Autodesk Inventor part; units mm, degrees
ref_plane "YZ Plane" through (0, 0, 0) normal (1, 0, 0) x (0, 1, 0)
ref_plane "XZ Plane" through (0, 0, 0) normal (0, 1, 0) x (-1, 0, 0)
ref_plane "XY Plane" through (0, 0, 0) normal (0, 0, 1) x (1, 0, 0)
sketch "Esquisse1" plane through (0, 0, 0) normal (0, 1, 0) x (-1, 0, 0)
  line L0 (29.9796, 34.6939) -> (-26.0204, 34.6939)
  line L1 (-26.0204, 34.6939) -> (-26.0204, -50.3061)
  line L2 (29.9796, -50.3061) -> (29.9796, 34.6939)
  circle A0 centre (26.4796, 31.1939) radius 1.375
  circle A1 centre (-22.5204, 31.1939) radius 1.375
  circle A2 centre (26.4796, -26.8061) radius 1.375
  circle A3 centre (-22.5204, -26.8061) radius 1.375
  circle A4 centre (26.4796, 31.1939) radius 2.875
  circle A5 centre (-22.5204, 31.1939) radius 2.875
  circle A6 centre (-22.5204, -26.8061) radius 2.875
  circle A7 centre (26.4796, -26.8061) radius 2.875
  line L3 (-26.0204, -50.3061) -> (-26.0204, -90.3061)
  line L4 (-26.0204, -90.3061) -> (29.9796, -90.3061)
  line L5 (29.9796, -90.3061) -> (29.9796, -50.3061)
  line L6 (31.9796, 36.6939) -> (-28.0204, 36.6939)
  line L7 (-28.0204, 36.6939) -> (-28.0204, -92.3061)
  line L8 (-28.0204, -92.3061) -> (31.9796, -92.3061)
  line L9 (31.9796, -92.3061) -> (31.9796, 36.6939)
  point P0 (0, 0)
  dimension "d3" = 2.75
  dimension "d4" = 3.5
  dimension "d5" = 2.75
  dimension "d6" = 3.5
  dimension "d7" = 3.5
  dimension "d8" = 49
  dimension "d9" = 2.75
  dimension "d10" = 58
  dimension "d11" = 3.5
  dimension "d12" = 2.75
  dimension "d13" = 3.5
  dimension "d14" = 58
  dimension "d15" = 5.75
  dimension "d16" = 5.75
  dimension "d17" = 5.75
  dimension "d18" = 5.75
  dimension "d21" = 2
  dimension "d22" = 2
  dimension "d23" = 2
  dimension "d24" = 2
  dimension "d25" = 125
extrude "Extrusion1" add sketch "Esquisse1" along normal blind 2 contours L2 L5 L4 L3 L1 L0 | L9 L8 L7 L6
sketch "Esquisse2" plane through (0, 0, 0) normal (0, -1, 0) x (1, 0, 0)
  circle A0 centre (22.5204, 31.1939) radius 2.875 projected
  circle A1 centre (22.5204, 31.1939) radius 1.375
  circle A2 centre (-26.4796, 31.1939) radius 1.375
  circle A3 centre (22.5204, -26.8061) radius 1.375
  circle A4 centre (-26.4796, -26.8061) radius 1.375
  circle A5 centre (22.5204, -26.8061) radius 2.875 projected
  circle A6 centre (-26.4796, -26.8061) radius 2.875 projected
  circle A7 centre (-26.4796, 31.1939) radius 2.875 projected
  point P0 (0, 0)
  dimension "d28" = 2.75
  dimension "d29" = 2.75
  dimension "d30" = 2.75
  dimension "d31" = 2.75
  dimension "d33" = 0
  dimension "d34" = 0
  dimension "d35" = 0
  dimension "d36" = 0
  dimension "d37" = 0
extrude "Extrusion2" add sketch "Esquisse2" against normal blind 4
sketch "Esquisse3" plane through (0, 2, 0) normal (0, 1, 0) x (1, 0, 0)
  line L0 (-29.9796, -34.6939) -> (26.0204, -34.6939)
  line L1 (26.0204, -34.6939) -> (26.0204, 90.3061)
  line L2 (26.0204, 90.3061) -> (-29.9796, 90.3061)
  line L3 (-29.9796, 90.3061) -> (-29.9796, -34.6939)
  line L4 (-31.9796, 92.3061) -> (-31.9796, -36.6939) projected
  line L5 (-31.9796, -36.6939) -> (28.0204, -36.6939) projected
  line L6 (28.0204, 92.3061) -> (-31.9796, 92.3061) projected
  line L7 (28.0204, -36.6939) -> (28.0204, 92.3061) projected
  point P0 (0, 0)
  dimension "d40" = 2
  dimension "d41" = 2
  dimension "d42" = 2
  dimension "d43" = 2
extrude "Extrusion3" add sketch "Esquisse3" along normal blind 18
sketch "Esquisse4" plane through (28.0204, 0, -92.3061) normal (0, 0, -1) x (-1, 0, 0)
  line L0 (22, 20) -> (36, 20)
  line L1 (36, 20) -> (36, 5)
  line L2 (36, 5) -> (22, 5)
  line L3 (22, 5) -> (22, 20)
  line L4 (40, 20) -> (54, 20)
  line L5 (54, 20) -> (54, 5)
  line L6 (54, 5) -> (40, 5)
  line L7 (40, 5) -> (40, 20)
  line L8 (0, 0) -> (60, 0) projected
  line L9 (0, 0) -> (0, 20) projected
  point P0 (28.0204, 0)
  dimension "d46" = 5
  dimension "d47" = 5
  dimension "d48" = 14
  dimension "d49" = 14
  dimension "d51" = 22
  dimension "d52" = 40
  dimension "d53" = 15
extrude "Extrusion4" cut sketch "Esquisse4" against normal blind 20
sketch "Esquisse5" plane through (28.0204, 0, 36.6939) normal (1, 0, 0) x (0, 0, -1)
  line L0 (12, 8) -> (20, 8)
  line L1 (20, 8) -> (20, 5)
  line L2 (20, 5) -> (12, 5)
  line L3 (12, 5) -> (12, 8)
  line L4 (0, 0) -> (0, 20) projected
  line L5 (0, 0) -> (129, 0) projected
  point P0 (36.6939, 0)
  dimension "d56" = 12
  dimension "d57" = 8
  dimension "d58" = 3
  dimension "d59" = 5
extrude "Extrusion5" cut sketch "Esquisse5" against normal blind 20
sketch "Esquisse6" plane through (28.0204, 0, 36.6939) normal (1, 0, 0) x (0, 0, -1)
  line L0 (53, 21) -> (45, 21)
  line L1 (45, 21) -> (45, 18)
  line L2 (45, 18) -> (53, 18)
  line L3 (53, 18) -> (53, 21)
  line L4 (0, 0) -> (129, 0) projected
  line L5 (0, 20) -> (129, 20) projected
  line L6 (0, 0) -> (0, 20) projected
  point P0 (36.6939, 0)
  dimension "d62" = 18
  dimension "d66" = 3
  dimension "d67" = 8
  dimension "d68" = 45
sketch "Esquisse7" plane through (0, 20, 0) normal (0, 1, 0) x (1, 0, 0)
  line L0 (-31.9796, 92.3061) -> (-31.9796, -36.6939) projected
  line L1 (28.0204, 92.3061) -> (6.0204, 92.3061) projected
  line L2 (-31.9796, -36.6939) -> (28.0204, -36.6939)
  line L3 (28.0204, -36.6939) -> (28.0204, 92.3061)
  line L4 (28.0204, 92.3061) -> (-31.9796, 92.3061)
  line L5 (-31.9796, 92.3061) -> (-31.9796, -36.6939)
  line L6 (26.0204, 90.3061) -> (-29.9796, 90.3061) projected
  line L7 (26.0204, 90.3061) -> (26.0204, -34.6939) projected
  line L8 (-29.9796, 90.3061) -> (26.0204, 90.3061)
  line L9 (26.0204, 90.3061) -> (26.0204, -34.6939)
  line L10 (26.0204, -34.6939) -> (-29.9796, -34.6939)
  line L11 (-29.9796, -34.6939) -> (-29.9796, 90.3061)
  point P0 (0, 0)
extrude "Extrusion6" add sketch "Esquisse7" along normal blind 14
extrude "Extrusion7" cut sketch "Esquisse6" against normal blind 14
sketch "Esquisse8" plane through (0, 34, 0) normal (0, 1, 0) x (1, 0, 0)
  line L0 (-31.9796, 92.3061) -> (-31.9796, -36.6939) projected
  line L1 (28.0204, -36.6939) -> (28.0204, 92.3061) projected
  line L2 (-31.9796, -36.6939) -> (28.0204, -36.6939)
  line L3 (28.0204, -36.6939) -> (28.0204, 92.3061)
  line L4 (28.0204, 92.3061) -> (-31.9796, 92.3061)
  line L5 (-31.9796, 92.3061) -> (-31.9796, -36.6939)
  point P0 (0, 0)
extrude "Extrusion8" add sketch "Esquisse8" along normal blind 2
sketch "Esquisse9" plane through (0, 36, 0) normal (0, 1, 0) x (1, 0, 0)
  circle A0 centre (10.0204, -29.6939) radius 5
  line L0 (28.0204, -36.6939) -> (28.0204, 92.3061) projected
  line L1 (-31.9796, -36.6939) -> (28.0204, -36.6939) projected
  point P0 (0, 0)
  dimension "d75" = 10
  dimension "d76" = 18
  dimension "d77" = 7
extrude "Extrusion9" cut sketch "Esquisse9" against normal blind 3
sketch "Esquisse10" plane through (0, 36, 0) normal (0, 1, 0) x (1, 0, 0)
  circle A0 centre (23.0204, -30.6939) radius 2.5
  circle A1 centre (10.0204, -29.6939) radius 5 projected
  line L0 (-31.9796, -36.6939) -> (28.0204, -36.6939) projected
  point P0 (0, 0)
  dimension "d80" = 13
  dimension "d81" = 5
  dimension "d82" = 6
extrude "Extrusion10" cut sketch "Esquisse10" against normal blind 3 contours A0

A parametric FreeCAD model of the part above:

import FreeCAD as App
import Part
import Sketcher
from FreeCAD import Vector
Q = App.Units.Quantity

doc = App.newDocument("Part")
body = doc.addObject("PartDesign::Body", "Body")

sketch1 = doc.addObject("Sketcher::SketchObject", "Sketch")
body.addObject(sketch1)
sketch1.AttachmentSupport = (doc.XZ_Plane, [""])
sketch1.MapMode = "FlatFace"
sketch1.addGeometry(Part.LineSegment(Vector(-32, -92.3, 0), Vector(-32, 36.7, 0)), False)
sketch1.addGeometry(Part.LineSegment(Vector(-32, 36.7, 0), Vector(28, 36.7, 0)), False)
sketch1.addGeometry(Part.LineSegment(Vector(28, 36.7, 0), Vector(28, -92.3, 0)), False)
sketch1.addGeometry(Part.LineSegment(Vector(28, -92.3, 0), Vector(-32, -92.3, 0)), False)
sketch1.addGeometry(Part.Circle(Vector(22.5, -26.8, 0), Vector(0, 0, 1), 2.9), False)
sketch1.addGeometry(Part.Circle(Vector(22.5, 31.2, 0), Vector(0, 0, 1), 2.9), False)
sketch1.addGeometry(Part.Circle(Vector(-26.5, -26.8, 0), Vector(0, 0, 1), 2.9), False)
sketch1.addGeometry(Part.Circle(Vector(-26.5, 31.2, 0), Vector(0, 0, 1), 2.9), False)
sketch1.addConstraint(Sketcher.Constraint("Coincident", 0, 2, 1, 1))
sketch1.addConstraint(Sketcher.Constraint("Coincident", 1, 2, 2, 1))
sketch1.addConstraint(Sketcher.Constraint("Coincident", 2, 2, 3, 1))
sketch1.addConstraint(Sketcher.Constraint("Coincident", 3, 2, 0, 1))
sketch1.addConstraint(Sketcher.Constraint("Vertical", 0))
sketch1.addConstraint(Sketcher.Constraint("Horizontal", 1))
sketch1.addConstraint(Sketcher.Constraint("Vertical", 2))
sketch1.addConstraint(Sketcher.Constraint("Horizontal", 3))
sketch1.addConstraint(Sketcher.Constraint("Equal", 4, 5))
sketch1.addConstraint(Sketcher.Constraint("Equal", 5, 6))
sketch1.addConstraint(Sketcher.Constraint("Equal", 6, 7))
sketch1.addConstraint(Sketcher.Constraint("Horizontal", 4, 3, 6, 3))
sketch1.addConstraint(Sketcher.Constraint("Horizontal", 5, 3, 7, 3))
sketch1.addConstraint(Sketcher.Constraint("Vertical", 4, 3, 5, 3))
sketch1.addConstraint(Sketcher.Constraint("Vertical", 6, 3, 7, 3))
sketch1.addConstraint(Sketcher.Constraint("Diameter", 4, Q("5.75 mm")))
sketch1.addConstraint(Sketcher.Constraint("DistanceY", 4, 3, 5, 3, Q("58 mm")))
sketch1.addConstraint(Sketcher.Constraint("DistanceX", 6, 3, 4, 3, Q("49 mm")))
sketch1.addConstraint(Sketcher.Constraint("DistanceX", 1, 1, 1, 2, Q("60 mm")))
sketch1.addConstraint(Sketcher.Constraint("DistanceY", 0, 1, 0, 2, Q("129 mm")))
sketch1.addConstraint(Sketcher.Constraint("DistanceX", 0, 2, 7, 3, Q("5.5 mm")))
sketch1.addConstraint(Sketcher.Constraint("DistanceY", 7, 3, 0, 2, Q("5.5 mm")))
sketch1.addConstraint(Sketcher.Constraint("DistanceY", 4, 3, -1, 1, Q("26.806 mm")))
sketch1.addConstraint(Sketcher.Constraint("DistanceX", -1, 1, 4, 3, Q("22.5204 mm")))
pad1 = doc.addObject("PartDesign::Pad", "Pad")
body.addObject(pad1)
pad1.Profile = sketch1
pad1.Length = 2
pad1.Reversed = True

sketch2 = doc.addObject("Sketcher::SketchObject", "Sketch001")
body.addObject(sketch2)
sketch2.AttachmentSupport = (doc.XZ_Plane, [""])
sketch2.MapMode = "FlatFace"
sketch2.addGeometry(Part.Circle(Vector(22.5, 31.2, 0), Vector(0, 0, 1), 2.9), False)
sketch2.addGeometry(Part.Circle(Vector(22.5, 31.2, 0), Vector(0, 0, 1), 1.4), False)
sketch2.addGeometry(Part.Circle(Vector(22.5, -26.8, 0), Vector(0, 0, 1), 2.9), False)
sketch2.addGeometry(Part.Circle(Vector(22.5, -26.8, 0), Vector(0, 0, 1), 1.4), False)
sketch2.addGeometry(Part.Circle(Vector(-26.5, -26.8, 0), Vector(0, 0, 1), 2.9), False)
sketch2.addGeometry(Part.Circle(Vector(-26.5, -26.8, 0), Vector(0, 0, 1), 1.4), False)
sketch2.addGeometry(Part.Circle(Vector(-26.5, 31.2, 0), Vector(0, 0, 1), 2.9), False)
sketch2.addGeometry(Part.Circle(Vector(-26.5, 31.2, 0), Vector(0, 0, 1), 1.4), False)
sketch2.addConstraint(Sketcher.Constraint("Coincident", 1, 3, 0, 3))
sketch2.addConstraint(Sketcher.Constraint("Coincident", 3, 3, 2, 3))
sketch2.addConstraint(Sketcher.Constraint("Coincident", 5, 3, 4, 3))
sketch2.addConstraint(Sketcher.Constraint("Coincident", 7, 3, 6, 3))
sketch2.addConstraint(Sketcher.Constraint("Equal", 0, 2))
sketch2.addConstraint(Sketcher.Constraint("Equal", 1, 3))
sketch2.addConstraint(Sketcher.Constraint("Equal", 2, 4))
sketch2.addConstraint(Sketcher.Constraint("Equal", 3, 5))
sketch2.addConstraint(Sketcher.Constraint("Equal", 4, 6))
sketch2.addConstraint(Sketcher.Constraint("Equal", 5, 7))
sketch2.addConstraint(Sketcher.Constraint("Horizontal", 3, 3, 4, 3))
sketch2.addConstraint(Sketcher.Constraint("Horizontal", 1, 3, 6, 3))
sketch2.addConstraint(Sketcher.Constraint("Vertical", 1, 3, 2, 3))
sketch2.addConstraint(Sketcher.Constraint("Vertical", 5, 3, 6, 3))
sketch2.addConstraint(Sketcher.Constraint("Diameter", 1, Q("2.75 mm")))
sketch2.addConstraint(Sketcher.Constraint("Diameter", 0, Q("5.75 mm")))
sketch2.addConstraint(Sketcher.Constraint("DistanceY", 2, 3, 0, 3, Q("58 mm")))
sketch2.addConstraint(Sketcher.Constraint("DistanceX", 4, 3, 2, 3, Q("49 mm")))
sketch2.addConstraint(Sketcher.Constraint("DistanceY", -1, 1, 0, 3, Q("31.194 mm")))
sketch2.addConstraint(Sketcher.Constraint("DistanceX", -1, 1, 0, 3, Q("22.5204 mm")))
pad2 = doc.addObject("PartDesign::Pad", "Pad001")
body.addObject(pad2)
pad2.Profile = sketch2
pad2.Length = 4
pad2.Reversed = True

sketch3 = doc.addObject("Sketcher::SketchObject", "Sketch002")
body.addObject(sketch3)
sketch3.AttachmentSupport = (doc.XZ_Plane, [""])
sketch3.MapMode = "FlatFace"
sketch3.AttachmentOffset = App.Placement(Vector(0, 0, -2), App.Rotation())
sketch3.addGeometry(Part.LineSegment(Vector(28, -92, 0), Vector(-32, -92, 0)), False)
sketch3.addGeometry(Part.LineSegment(Vector(-32, -92, 0), Vector(-32, 37, 0)), False)
sketch3.addGeometry(Part.LineSegment(Vector(-32, 37, 0), Vector(28, 37, 0)), False)
sketch3.addGeometry(Part.LineSegment(Vector(28, 37, 0), Vector(28, -92, 0)), False)
sketch3.addGeometry(Part.LineSegment(Vector(26, 35, 0), Vector(-30, 35, 0)), False)
sketch3.addGeometry(Part.LineSegment(Vector(-30, 35, 0), Vector(-30, -90, 0)), False)
sketch3.addGeometry(Part.LineSegment(Vector(-30, -90, 0), Vector(26, -90, 0)), False)
sketch3.addGeometry(Part.LineSegment(Vector(26, -90, 0), Vector(26, 35, 0)), False)
sketch3.addConstraint(Sketcher.Constraint("Coincident", 0, 2, 1, 1))
sketch3.addConstraint(Sketcher.Constraint("Coincident", 1, 2, 2, 1))
sketch3.addConstraint(Sketcher.Constraint("Coincident", 2, 2, 3, 1))
sketch3.addConstraint(Sketcher.Constraint("Coincident", 3, 2, 0, 1))
sketch3.addConstraint(Sketcher.Constraint("Coincident", 4, 2, 5, 1))
sketch3.addConstraint(Sketcher.Constraint("Coincident", 5, 2, 6, 1))
sketch3.addConstraint(Sketcher.Constraint("Coincident", 6, 2, 7, 1))
sketch3.addConstraint(Sketcher.Constraint("Coincident", 7, 2, 4, 1))
sketch3.addConstraint(Sketcher.Constraint("Horizontal", 0))
sketch3.addConstraint(Sketcher.Constraint("Vertical", 1))
sketch3.addConstraint(Sketcher.Constraint("Horizontal", 2))
sketch3.addConstraint(Sketcher.Constraint("Vertical", 3))
sketch3.addConstraint(Sketcher.Constraint("Horizontal", 4))
sketch3.addConstraint(Sketcher.Constraint("Vertical", 5))
sketch3.addConstraint(Sketcher.Constraint("Horizontal", 6))
sketch3.addConstraint(Sketcher.Constraint("Vertical", 7))
sketch3.addConstraint(Sketcher.Constraint("DistanceX", 1, 2, 4, 2, Q("2 mm")))
sketch3.addConstraint(Sketcher.Constraint("DistanceY", 4, 2, 1, 2, Q("2 mm")))
sketch3.addConstraint(Sketcher.Constraint("DistanceY", 0, 2, 5, 2, Q("2 mm")))
sketch3.addConstraint(Sketcher.Constraint("DistanceX", 6, 2, 3, 2, Q("2 mm")))
sketch3.addConstraint(Sketcher.Constraint("DistanceX", 0, 2, 0, 1, Q("60 mm")))
sketch3.addConstraint(Sketcher.Constraint("DistanceY", 1, 1, 1, 2, Q("129 mm")))
sketch3.addConstraint(Sketcher.Constraint("DistanceY", 0, 2, -1, 1, Q("92.306 mm")))
sketch3.addConstraint(Sketcher.Constraint("DistanceX", 0, 2, -1, 1, Q("31.9796 mm")))
pad3 = doc.addObject("PartDesign::Pad", "Pad002")
body.addObject(pad3)
pad3.Profile = sketch3
pad3.Length = 18
pad3.Reversed = True

sketch4 = doc.addObject("Sketcher::SketchObject", "Sketch003")
body.addObject(sketch4)
sketch4.AttachmentSupport = (doc.XY_Plane, [""])
sketch4.MapMode = "FlatFace"
sketch4.AttachmentOffset = App.Placement(Vector(0, 0, -92.3061), App.Rotation())
sketch4.addGeometry(Part.LineSegment(Vector(-8, 20, 0), Vector(6, 20, 0)), False)
sketch4.addGeometry(Part.LineSegment(Vector(6, 20, 0), Vector(6, 5, 0)), False)
sketch4.addGeometry(Part.LineSegment(Vector(6, 5, 0), Vector(-8, 5, 0)), False)
sketch4.addGeometry(Part.LineSegment(Vector(-8, 5, 0), Vector(-8, 20, 0)), False)
sketch4.addGeometry(Part.LineSegment(Vector(-26, 20, 0), Vector(-12, 20, 0)), False)
sketch4.addGeometry(Part.LineSegment(Vector(-12, 20, 0), Vector(-12, 5, 0)), False)
sketch4.addGeometry(Part.LineSegment(Vector(-12, 5, 0), Vector(-26, 5, 0)), False)
sketch4.addGeometry(Part.LineSegment(Vector(-26, 5, 0), Vector(-26, 20, 0)), False)
sketch4.addConstraint(Sketcher.Constraint("Coincident", 0, 2, 1, 1))
sketch4.addConstraint(Sketcher.Constraint("Coincident", 1, 2, 2, 1))
sketch4.addConstraint(Sketcher.Constraint("Coincident", 2, 2, 3, 1))
sketch4.addConstraint(Sketcher.Constraint("Coincident", 3, 2, 0, 1))
sketch4.addConstraint(Sketcher.Constraint("Coincident", 4, 2, 5, 1))
sketch4.addConstraint(Sketcher.Constraint("Coincident", 5, 2, 6, 1))
sketch4.addConstraint(Sketcher.Constraint("Coincident", 6, 2, 7, 1))
sketch4.addConstraint(Sketcher.Constraint("Coincident", 7, 2, 4, 1))
sketch4.addConstraint(Sketcher.Constraint("Horizontal", 0))
sketch4.addConstraint(Sketcher.Constraint("Vertical", 1))
sketch4.addConstraint(Sketcher.Constraint("Horizontal", 2))
sketch4.addConstraint(Sketcher.Constraint("Vertical", 3))
sketch4.addConstraint(Sketcher.Constraint("Horizontal", 4))
sketch4.addConstraint(Sketcher.Constraint("Vertical", 5))
sketch4.addConstraint(Sketcher.Constraint("Horizontal", 6))
sketch4.addConstraint(Sketcher.Constraint("Vertical", 7))
sketch4.addConstraint(Sketcher.Constraint("Horizontal", 3, 2, 4, 2))
sketch4.addConstraint(Sketcher.Constraint("Horizontal", 2, 2, 5, 2))
sketch4.addConstraint(Sketcher.Constraint("Equal", 2, 4))
sketch4.addConstraint(Sketcher.Constraint("DistanceX", 0, 1, 0, 2, Q("14 mm")))
sketch4.addConstraint(Sketcher.Constraint("DistanceY", 1, 2, 1, 1, Q("15 mm")))
sketch4.addConstraint(Sketcher.Constraint("DistanceY", -1, 1, 1, 2, Q("5 mm")))
sketch4.addConstraint(Sketcher.Constraint("DistanceX", 4, 2, 3, 2, Q("4 mm")))
sketch4.addConstraint(Sketcher.Constraint("DistanceX", -1, 1, 0, 2, Q("6.0204 mm")))
pocket1 = doc.addObject("PartDesign::Pocket", "Pocket")
body.addObject(pocket1)
pocket1.Profile = sketch4
pocket1.Length = 20
pocket1.Reversed = True

sketch5 = doc.addObject("Sketcher::SketchObject", "Sketch004")
body.addObject(sketch5)
sketch5.AttachmentSupport = (doc.YZ_Plane, [""])
sketch5.MapMode = "FlatFace"
sketch5.AttachmentOffset = App.Placement(Vector(0, 0, 28.0204), App.Rotation())
sketch5.addGeometry(Part.LineSegment(Vector(8, 16.7, 0), Vector(8, 24.7, 0)), False)
sketch5.addGeometry(Part.LineSegment(Vector(8, 24.7, 0), Vector(5, 24.7, 0)), False)
sketch5.addGeometry(Part.LineSegment(Vector(5, 24.7, 0), Vector(5, 16.7, 0)), False)
sketch5.addGeometry(Part.LineSegment(Vector(5, 16.7, 0), Vector(8, 16.7, 0)), False)
sketch5.addConstraint(Sketcher.Constraint("Coincident", 0, 2, 1, 1))
sketch5.addConstraint(Sketcher.Constraint("Coincident", 1, 2, 2, 1))
sketch5.addConstraint(Sketcher.Constraint("Coincident", 2, 2, 3, 1))
sketch5.addConstraint(Sketcher.Constraint("Coincident", 3, 2, 0, 1))
sketch5.addConstraint(Sketcher.Constraint("Vertical", 0))
sketch5.addConstraint(Sketcher.Constraint("Horizontal", 1))
sketch5.addConstraint(Sketcher.Constraint("Vertical", 2))
sketch5.addConstraint(Sketcher.Constraint("Horizontal", 3))
sketch5.addConstraint(Sketcher.Constraint("DistanceX", 1, 2, 1, 1, Q("3 mm")))
sketch5.addConstraint(Sketcher.Constraint("DistanceY", 0, 1, 0, 2, Q("8 mm")))
sketch5.addConstraint(Sketcher.Constraint("DistanceX", -1, 1, 0, 2, Q("8 mm")))
sketch5.addConstraint(Sketcher.Constraint("DistanceY", -1, 1, 0, 2, Q("24.694 mm")))
pocket2 = doc.addObject("PartDesign::Pocket", "Pocket001")
body.addObject(pocket2)
pocket2.Profile = sketch5
pocket2.Length = 20

sketch6 = doc.addObject("Sketcher::SketchObject", "Sketch005")
body.addObject(sketch6)
sketch6.AttachmentSupport = (doc.XZ_Plane, [""])
sketch6.MapMode = "FlatFace"
sketch6.AttachmentOffset = App.Placement(Vector(0, 0, -20), App.Rotation())
sketch6.addGeometry(Part.LineSegment(Vector(28, -92, 0), Vector(-32, -92, 0)), False)
sketch6.addGeometry(Part.LineSegment(Vector(-32, -92, 0), Vector(-32, 37, 0)), False)
sketch6.addGeometry(Part.LineSegment(Vector(-32, 37, 0), Vector(28, 37, 0)), False)
sketch6.addGeometry(Part.LineSegment(Vector(28, 37, 0), Vector(28, -92, 0)), False)
sketch6.addGeometry(Part.LineSegment(Vector(-30, -90, 0), Vector(26, -90, 0)), False)
sketch6.addGeometry(Part.LineSegment(Vector(26, -90, 0), Vector(26, 35, 0)), False)
sketch6.addGeometry(Part.LineSegment(Vector(26, 35, 0), Vector(-30, 35, 0)), False)
sketch6.addGeometry(Part.LineSegment(Vector(-30, 35, 0), Vector(-30, -90, 0)), False)
sketch6.addConstraint(Sketcher.Constraint("Coincident", 0, 2, 1, 1))
sketch6.addConstraint(Sketcher.Constraint("Coincident", 1, 2, 2, 1))
sketch6.addConstraint(Sketcher.Constraint("Coincident", 2, 2, 3, 1))
sketch6.addConstraint(Sketcher.Constraint("Coincident", 3, 2, 0, 1))
sketch6.addConstraint(Sketcher.Constraint("Coincident", 4, 2, 5, 1))
sketch6.addConstraint(Sketcher.Constraint("Coincident", 5, 2, 6, 1))
sketch6.addConstraint(Sketcher.Constraint("Coincident", 6, 2, 7, 1))
sketch6.addConstraint(Sketcher.Constraint("Coincident", 7, 2, 4, 1))
sketch6.addConstraint(Sketcher.Constraint("Horizontal", 0))
sketch6.addConstraint(Sketcher.Constraint("Vertical", 1))
sketch6.addConstraint(Sketcher.Constraint("Horizontal", 2))
sketch6.addConstraint(Sketcher.Constraint("Vertical", 3))
sketch6.addConstraint(Sketcher.Constraint("Horizontal", 4))
sketch6.addConstraint(Sketcher.Constraint("Vertical", 5))
sketch6.addConstraint(Sketcher.Constraint("Horizontal", 6))
sketch6.addConstraint(Sketcher.Constraint("Vertical", 7))
sketch6.addConstraint(Sketcher.Constraint("DistanceX", 0, 2, 0, 1, Q("60 mm")))
sketch6.addConstraint(Sketcher.Constraint("DistanceX", 4, 1, 4, 2, Q("56 mm")))
sketch6.addConstraint(Sketcher.Constraint("DistanceY", 1, 1, 1, 2, Q("129 mm")))
sketch6.addConstraint(Sketcher.Constraint("DistanceY", 5, 1, 5, 2, Q("125 mm")))
sketch6.addConstraint(Sketcher.Constraint("DistanceX", 4, 2, 3, 2, Q("2 mm")))
sketch6.addConstraint(Sketcher.Constraint("DistanceY", 3, 2, 4, 2, Q("2 mm")))
sketch6.addConstraint(Sketcher.Constraint("DistanceY", 0, 2, -1, 1, Q("92.306 mm")))
sketch6.addConstraint(Sketcher.Constraint("DistanceX", 0, 2, -1, 1, Q("31.9796 mm")))
pad4 = doc.addObject("PartDesign::Pad", "Pad003")
body.addObject(pad4)
pad4.Profile = sketch6
pad4.Length = 14
pad4.Reversed = True

sketch7 = doc.addObject("Sketcher::SketchObject", "Sketch006")
body.addObject(sketch7)
sketch7.AttachmentSupport = (doc.YZ_Plane, [""])
sketch7.MapMode = "FlatFace"
sketch7.AttachmentOffset = App.Placement(Vector(0, 0, 28.0204), App.Rotation())
sketch7.addGeometry(Part.LineSegment(Vector(21, -16.3, 0), Vector(21, -8.3, 0)), False)
sketch7.addGeometry(Part.LineSegment(Vector(21, -8.3, 0), Vector(18, -8.3, 0)), False)
sketch7.addGeometry(Part.LineSegment(Vector(18, -8.3, 0), Vector(18, -16.3, 0)), False)
sketch7.addGeometry(Part.LineSegment(Vector(18, -16.3, 0), Vector(21, -16.3, 0)), False)
sketch7.addConstraint(Sketcher.Constraint("Coincident", 0, 2, 1, 1))
sketch7.addConstraint(Sketcher.Constraint("Coincident", 1, 2, 2, 1))
sketch7.addConstraint(Sketcher.Constraint("Coincident", 2, 2, 3, 1))
sketch7.addConstraint(Sketcher.Constraint("Coincident", 3, 2, 0, 1))
sketch7.addConstraint(Sketcher.Constraint("Vertical", 0))
sketch7.addConstraint(Sketcher.Constraint("Horizontal", 1))
sketch7.addConstraint(Sketcher.Constraint("Vertical", 2))
sketch7.addConstraint(Sketcher.Constraint("Horizontal", 3))
sketch7.addConstraint(Sketcher.Constraint("DistanceX", 1, 2, 1, 1, Q("3 mm")))
sketch7.addConstraint(Sketcher.Constraint("DistanceY", 0, 1, 0, 2, Q("8 mm")))
sketch7.addConstraint(Sketcher.Constraint("DistanceX", -1, 1, 1, 2, Q("18 mm")))
sketch7.addConstraint(Sketcher.Constraint("DistanceY", 0, 2, -1, 1, Q("8.306 mm")))
pocket3 = doc.addObject("PartDesign::Pocket", "Pocket002")
body.addObject(pocket3)
pocket3.Profile = sketch7
pocket3.Length = 14

sketch8 = doc.addObject("Sketcher::SketchObject", "Sketch007")
body.addObject(sketch8)
sketch8.AttachmentSupport = (doc.XZ_Plane, [""])
sketch8.MapMode = "FlatFace"
sketch8.AttachmentOffset = App.Placement(Vector(0, 0, -34), App.Rotation())
sketch8.addGeometry(Part.LineSegment(Vector(28, -92, 0), Vector(-32, -92, 0)), False)
sketch8.addGeometry(Part.LineSegment(Vector(-32, -92, 0), Vector(-32, 37, 0)), False)
sketch8.addGeometry(Part.LineSegment(Vector(-32, 37, 0), Vector(28, 37, 0)), False)
sketch8.addGeometry(Part.LineSegment(Vector(28, 37, 0), Vector(28, -92, 0)), False)
sketch8.addConstraint(Sketcher.Constraint("Coincident", 0, 2, 1, 1))
sketch8.addConstraint(Sketcher.Constraint("Coincident", 1, 2, 2, 1))
sketch8.addConstraint(Sketcher.Constraint("Coincident", 2, 2, 3, 1))
sketch8.addConstraint(Sketcher.Constraint("Coincident", 3, 2, 0, 1))
sketch8.addConstraint(Sketcher.Constraint("Horizontal", 0))
sketch8.addConstraint(Sketcher.Constraint("Vertical", 1))
sketch8.addConstraint(Sketcher.Constraint("Horizontal", 2))
sketch8.addConstraint(Sketcher.Constraint("Vertical", 3))
sketch8.addConstraint(Sketcher.Constraint("DistanceX", 0, 2, 0, 1, Q("60 mm")))
sketch8.addConstraint(Sketcher.Constraint("DistanceY", 1, 1, 1, 2, Q("129 mm")))
sketch8.addConstraint(Sketcher.Constraint("DistanceY", 0, 2, -1, 1, Q("92.306 mm")))
sketch8.addConstraint(Sketcher.Constraint("DistanceX", 0, 2, -1, 1, Q("31.9796 mm")))
pad5 = doc.addObject("PartDesign::Pad", "Pad004")
body.addObject(pad5)
pad5.Profile = sketch8
pad5.Length = 2
pad5.Reversed = True

sketch9 = doc.addObject("Sketcher::SketchObject", "Sketch008")
body.addObject(sketch9)
sketch9.AttachmentSupport = (doc.XZ_Plane, [""])
sketch9.MapMode = "FlatFace"
sketch9.AttachmentOffset = App.Placement(Vector(0, 0, -36), App.Rotation())
sketch9.addGeometry(Part.Circle(Vector(10, 30, 0), Vector(0, 0, 1), 5), False)
sketch9.addConstraint(Sketcher.Constraint("Diameter", 0, Q("10 mm")))
sketch9.addConstraint(Sketcher.Constraint("DistanceY", -1, 1, 0, 3, Q("29.694 mm")))
sketch9.addConstraint(Sketcher.Constraint("DistanceX", -1, 1, 0, 3, Q("10.0204 mm")))
pocket4 = doc.addObject("PartDesign::Pocket", "Pocket003")
body.addObject(pocket4)
pocket4.Profile = sketch9
pocket4.Length = 3
pocket4.Reversed = True

sketch10 = doc.addObject("Sketcher::SketchObject", "Sketch009")
body.addObject(sketch10)
sketch10.AttachmentSupport = (doc.XZ_Plane, [""])
sketch10.MapMode = "FlatFace"
sketch10.AttachmentOffset = App.Placement(Vector(0, 0, -36), App.Rotation())
sketch10.addGeometry(Part.Circle(Vector(23, 30.7, 0), Vector(0, 0, 1), 2.5), False)
sketch10.addConstraint(Sketcher.Constraint("Diameter", 0, Q("5 mm")))
sketch10.addConstraint(Sketcher.Constraint("DistanceY", -1, 1, 0, 3, Q("30.694 mm")))
sketch10.addConstraint(Sketcher.Constraint("DistanceX", -1, 1, 0, 3, Q("23.0204 mm")))
pocket5 = doc.addObject("PartDesign::Pocket", "Pocket004")
body.addObject(pocket5)
pocket5.Profile = sketch10
pocket5.Length = 3
pocket5.Reversed = True

doc.recompute()
